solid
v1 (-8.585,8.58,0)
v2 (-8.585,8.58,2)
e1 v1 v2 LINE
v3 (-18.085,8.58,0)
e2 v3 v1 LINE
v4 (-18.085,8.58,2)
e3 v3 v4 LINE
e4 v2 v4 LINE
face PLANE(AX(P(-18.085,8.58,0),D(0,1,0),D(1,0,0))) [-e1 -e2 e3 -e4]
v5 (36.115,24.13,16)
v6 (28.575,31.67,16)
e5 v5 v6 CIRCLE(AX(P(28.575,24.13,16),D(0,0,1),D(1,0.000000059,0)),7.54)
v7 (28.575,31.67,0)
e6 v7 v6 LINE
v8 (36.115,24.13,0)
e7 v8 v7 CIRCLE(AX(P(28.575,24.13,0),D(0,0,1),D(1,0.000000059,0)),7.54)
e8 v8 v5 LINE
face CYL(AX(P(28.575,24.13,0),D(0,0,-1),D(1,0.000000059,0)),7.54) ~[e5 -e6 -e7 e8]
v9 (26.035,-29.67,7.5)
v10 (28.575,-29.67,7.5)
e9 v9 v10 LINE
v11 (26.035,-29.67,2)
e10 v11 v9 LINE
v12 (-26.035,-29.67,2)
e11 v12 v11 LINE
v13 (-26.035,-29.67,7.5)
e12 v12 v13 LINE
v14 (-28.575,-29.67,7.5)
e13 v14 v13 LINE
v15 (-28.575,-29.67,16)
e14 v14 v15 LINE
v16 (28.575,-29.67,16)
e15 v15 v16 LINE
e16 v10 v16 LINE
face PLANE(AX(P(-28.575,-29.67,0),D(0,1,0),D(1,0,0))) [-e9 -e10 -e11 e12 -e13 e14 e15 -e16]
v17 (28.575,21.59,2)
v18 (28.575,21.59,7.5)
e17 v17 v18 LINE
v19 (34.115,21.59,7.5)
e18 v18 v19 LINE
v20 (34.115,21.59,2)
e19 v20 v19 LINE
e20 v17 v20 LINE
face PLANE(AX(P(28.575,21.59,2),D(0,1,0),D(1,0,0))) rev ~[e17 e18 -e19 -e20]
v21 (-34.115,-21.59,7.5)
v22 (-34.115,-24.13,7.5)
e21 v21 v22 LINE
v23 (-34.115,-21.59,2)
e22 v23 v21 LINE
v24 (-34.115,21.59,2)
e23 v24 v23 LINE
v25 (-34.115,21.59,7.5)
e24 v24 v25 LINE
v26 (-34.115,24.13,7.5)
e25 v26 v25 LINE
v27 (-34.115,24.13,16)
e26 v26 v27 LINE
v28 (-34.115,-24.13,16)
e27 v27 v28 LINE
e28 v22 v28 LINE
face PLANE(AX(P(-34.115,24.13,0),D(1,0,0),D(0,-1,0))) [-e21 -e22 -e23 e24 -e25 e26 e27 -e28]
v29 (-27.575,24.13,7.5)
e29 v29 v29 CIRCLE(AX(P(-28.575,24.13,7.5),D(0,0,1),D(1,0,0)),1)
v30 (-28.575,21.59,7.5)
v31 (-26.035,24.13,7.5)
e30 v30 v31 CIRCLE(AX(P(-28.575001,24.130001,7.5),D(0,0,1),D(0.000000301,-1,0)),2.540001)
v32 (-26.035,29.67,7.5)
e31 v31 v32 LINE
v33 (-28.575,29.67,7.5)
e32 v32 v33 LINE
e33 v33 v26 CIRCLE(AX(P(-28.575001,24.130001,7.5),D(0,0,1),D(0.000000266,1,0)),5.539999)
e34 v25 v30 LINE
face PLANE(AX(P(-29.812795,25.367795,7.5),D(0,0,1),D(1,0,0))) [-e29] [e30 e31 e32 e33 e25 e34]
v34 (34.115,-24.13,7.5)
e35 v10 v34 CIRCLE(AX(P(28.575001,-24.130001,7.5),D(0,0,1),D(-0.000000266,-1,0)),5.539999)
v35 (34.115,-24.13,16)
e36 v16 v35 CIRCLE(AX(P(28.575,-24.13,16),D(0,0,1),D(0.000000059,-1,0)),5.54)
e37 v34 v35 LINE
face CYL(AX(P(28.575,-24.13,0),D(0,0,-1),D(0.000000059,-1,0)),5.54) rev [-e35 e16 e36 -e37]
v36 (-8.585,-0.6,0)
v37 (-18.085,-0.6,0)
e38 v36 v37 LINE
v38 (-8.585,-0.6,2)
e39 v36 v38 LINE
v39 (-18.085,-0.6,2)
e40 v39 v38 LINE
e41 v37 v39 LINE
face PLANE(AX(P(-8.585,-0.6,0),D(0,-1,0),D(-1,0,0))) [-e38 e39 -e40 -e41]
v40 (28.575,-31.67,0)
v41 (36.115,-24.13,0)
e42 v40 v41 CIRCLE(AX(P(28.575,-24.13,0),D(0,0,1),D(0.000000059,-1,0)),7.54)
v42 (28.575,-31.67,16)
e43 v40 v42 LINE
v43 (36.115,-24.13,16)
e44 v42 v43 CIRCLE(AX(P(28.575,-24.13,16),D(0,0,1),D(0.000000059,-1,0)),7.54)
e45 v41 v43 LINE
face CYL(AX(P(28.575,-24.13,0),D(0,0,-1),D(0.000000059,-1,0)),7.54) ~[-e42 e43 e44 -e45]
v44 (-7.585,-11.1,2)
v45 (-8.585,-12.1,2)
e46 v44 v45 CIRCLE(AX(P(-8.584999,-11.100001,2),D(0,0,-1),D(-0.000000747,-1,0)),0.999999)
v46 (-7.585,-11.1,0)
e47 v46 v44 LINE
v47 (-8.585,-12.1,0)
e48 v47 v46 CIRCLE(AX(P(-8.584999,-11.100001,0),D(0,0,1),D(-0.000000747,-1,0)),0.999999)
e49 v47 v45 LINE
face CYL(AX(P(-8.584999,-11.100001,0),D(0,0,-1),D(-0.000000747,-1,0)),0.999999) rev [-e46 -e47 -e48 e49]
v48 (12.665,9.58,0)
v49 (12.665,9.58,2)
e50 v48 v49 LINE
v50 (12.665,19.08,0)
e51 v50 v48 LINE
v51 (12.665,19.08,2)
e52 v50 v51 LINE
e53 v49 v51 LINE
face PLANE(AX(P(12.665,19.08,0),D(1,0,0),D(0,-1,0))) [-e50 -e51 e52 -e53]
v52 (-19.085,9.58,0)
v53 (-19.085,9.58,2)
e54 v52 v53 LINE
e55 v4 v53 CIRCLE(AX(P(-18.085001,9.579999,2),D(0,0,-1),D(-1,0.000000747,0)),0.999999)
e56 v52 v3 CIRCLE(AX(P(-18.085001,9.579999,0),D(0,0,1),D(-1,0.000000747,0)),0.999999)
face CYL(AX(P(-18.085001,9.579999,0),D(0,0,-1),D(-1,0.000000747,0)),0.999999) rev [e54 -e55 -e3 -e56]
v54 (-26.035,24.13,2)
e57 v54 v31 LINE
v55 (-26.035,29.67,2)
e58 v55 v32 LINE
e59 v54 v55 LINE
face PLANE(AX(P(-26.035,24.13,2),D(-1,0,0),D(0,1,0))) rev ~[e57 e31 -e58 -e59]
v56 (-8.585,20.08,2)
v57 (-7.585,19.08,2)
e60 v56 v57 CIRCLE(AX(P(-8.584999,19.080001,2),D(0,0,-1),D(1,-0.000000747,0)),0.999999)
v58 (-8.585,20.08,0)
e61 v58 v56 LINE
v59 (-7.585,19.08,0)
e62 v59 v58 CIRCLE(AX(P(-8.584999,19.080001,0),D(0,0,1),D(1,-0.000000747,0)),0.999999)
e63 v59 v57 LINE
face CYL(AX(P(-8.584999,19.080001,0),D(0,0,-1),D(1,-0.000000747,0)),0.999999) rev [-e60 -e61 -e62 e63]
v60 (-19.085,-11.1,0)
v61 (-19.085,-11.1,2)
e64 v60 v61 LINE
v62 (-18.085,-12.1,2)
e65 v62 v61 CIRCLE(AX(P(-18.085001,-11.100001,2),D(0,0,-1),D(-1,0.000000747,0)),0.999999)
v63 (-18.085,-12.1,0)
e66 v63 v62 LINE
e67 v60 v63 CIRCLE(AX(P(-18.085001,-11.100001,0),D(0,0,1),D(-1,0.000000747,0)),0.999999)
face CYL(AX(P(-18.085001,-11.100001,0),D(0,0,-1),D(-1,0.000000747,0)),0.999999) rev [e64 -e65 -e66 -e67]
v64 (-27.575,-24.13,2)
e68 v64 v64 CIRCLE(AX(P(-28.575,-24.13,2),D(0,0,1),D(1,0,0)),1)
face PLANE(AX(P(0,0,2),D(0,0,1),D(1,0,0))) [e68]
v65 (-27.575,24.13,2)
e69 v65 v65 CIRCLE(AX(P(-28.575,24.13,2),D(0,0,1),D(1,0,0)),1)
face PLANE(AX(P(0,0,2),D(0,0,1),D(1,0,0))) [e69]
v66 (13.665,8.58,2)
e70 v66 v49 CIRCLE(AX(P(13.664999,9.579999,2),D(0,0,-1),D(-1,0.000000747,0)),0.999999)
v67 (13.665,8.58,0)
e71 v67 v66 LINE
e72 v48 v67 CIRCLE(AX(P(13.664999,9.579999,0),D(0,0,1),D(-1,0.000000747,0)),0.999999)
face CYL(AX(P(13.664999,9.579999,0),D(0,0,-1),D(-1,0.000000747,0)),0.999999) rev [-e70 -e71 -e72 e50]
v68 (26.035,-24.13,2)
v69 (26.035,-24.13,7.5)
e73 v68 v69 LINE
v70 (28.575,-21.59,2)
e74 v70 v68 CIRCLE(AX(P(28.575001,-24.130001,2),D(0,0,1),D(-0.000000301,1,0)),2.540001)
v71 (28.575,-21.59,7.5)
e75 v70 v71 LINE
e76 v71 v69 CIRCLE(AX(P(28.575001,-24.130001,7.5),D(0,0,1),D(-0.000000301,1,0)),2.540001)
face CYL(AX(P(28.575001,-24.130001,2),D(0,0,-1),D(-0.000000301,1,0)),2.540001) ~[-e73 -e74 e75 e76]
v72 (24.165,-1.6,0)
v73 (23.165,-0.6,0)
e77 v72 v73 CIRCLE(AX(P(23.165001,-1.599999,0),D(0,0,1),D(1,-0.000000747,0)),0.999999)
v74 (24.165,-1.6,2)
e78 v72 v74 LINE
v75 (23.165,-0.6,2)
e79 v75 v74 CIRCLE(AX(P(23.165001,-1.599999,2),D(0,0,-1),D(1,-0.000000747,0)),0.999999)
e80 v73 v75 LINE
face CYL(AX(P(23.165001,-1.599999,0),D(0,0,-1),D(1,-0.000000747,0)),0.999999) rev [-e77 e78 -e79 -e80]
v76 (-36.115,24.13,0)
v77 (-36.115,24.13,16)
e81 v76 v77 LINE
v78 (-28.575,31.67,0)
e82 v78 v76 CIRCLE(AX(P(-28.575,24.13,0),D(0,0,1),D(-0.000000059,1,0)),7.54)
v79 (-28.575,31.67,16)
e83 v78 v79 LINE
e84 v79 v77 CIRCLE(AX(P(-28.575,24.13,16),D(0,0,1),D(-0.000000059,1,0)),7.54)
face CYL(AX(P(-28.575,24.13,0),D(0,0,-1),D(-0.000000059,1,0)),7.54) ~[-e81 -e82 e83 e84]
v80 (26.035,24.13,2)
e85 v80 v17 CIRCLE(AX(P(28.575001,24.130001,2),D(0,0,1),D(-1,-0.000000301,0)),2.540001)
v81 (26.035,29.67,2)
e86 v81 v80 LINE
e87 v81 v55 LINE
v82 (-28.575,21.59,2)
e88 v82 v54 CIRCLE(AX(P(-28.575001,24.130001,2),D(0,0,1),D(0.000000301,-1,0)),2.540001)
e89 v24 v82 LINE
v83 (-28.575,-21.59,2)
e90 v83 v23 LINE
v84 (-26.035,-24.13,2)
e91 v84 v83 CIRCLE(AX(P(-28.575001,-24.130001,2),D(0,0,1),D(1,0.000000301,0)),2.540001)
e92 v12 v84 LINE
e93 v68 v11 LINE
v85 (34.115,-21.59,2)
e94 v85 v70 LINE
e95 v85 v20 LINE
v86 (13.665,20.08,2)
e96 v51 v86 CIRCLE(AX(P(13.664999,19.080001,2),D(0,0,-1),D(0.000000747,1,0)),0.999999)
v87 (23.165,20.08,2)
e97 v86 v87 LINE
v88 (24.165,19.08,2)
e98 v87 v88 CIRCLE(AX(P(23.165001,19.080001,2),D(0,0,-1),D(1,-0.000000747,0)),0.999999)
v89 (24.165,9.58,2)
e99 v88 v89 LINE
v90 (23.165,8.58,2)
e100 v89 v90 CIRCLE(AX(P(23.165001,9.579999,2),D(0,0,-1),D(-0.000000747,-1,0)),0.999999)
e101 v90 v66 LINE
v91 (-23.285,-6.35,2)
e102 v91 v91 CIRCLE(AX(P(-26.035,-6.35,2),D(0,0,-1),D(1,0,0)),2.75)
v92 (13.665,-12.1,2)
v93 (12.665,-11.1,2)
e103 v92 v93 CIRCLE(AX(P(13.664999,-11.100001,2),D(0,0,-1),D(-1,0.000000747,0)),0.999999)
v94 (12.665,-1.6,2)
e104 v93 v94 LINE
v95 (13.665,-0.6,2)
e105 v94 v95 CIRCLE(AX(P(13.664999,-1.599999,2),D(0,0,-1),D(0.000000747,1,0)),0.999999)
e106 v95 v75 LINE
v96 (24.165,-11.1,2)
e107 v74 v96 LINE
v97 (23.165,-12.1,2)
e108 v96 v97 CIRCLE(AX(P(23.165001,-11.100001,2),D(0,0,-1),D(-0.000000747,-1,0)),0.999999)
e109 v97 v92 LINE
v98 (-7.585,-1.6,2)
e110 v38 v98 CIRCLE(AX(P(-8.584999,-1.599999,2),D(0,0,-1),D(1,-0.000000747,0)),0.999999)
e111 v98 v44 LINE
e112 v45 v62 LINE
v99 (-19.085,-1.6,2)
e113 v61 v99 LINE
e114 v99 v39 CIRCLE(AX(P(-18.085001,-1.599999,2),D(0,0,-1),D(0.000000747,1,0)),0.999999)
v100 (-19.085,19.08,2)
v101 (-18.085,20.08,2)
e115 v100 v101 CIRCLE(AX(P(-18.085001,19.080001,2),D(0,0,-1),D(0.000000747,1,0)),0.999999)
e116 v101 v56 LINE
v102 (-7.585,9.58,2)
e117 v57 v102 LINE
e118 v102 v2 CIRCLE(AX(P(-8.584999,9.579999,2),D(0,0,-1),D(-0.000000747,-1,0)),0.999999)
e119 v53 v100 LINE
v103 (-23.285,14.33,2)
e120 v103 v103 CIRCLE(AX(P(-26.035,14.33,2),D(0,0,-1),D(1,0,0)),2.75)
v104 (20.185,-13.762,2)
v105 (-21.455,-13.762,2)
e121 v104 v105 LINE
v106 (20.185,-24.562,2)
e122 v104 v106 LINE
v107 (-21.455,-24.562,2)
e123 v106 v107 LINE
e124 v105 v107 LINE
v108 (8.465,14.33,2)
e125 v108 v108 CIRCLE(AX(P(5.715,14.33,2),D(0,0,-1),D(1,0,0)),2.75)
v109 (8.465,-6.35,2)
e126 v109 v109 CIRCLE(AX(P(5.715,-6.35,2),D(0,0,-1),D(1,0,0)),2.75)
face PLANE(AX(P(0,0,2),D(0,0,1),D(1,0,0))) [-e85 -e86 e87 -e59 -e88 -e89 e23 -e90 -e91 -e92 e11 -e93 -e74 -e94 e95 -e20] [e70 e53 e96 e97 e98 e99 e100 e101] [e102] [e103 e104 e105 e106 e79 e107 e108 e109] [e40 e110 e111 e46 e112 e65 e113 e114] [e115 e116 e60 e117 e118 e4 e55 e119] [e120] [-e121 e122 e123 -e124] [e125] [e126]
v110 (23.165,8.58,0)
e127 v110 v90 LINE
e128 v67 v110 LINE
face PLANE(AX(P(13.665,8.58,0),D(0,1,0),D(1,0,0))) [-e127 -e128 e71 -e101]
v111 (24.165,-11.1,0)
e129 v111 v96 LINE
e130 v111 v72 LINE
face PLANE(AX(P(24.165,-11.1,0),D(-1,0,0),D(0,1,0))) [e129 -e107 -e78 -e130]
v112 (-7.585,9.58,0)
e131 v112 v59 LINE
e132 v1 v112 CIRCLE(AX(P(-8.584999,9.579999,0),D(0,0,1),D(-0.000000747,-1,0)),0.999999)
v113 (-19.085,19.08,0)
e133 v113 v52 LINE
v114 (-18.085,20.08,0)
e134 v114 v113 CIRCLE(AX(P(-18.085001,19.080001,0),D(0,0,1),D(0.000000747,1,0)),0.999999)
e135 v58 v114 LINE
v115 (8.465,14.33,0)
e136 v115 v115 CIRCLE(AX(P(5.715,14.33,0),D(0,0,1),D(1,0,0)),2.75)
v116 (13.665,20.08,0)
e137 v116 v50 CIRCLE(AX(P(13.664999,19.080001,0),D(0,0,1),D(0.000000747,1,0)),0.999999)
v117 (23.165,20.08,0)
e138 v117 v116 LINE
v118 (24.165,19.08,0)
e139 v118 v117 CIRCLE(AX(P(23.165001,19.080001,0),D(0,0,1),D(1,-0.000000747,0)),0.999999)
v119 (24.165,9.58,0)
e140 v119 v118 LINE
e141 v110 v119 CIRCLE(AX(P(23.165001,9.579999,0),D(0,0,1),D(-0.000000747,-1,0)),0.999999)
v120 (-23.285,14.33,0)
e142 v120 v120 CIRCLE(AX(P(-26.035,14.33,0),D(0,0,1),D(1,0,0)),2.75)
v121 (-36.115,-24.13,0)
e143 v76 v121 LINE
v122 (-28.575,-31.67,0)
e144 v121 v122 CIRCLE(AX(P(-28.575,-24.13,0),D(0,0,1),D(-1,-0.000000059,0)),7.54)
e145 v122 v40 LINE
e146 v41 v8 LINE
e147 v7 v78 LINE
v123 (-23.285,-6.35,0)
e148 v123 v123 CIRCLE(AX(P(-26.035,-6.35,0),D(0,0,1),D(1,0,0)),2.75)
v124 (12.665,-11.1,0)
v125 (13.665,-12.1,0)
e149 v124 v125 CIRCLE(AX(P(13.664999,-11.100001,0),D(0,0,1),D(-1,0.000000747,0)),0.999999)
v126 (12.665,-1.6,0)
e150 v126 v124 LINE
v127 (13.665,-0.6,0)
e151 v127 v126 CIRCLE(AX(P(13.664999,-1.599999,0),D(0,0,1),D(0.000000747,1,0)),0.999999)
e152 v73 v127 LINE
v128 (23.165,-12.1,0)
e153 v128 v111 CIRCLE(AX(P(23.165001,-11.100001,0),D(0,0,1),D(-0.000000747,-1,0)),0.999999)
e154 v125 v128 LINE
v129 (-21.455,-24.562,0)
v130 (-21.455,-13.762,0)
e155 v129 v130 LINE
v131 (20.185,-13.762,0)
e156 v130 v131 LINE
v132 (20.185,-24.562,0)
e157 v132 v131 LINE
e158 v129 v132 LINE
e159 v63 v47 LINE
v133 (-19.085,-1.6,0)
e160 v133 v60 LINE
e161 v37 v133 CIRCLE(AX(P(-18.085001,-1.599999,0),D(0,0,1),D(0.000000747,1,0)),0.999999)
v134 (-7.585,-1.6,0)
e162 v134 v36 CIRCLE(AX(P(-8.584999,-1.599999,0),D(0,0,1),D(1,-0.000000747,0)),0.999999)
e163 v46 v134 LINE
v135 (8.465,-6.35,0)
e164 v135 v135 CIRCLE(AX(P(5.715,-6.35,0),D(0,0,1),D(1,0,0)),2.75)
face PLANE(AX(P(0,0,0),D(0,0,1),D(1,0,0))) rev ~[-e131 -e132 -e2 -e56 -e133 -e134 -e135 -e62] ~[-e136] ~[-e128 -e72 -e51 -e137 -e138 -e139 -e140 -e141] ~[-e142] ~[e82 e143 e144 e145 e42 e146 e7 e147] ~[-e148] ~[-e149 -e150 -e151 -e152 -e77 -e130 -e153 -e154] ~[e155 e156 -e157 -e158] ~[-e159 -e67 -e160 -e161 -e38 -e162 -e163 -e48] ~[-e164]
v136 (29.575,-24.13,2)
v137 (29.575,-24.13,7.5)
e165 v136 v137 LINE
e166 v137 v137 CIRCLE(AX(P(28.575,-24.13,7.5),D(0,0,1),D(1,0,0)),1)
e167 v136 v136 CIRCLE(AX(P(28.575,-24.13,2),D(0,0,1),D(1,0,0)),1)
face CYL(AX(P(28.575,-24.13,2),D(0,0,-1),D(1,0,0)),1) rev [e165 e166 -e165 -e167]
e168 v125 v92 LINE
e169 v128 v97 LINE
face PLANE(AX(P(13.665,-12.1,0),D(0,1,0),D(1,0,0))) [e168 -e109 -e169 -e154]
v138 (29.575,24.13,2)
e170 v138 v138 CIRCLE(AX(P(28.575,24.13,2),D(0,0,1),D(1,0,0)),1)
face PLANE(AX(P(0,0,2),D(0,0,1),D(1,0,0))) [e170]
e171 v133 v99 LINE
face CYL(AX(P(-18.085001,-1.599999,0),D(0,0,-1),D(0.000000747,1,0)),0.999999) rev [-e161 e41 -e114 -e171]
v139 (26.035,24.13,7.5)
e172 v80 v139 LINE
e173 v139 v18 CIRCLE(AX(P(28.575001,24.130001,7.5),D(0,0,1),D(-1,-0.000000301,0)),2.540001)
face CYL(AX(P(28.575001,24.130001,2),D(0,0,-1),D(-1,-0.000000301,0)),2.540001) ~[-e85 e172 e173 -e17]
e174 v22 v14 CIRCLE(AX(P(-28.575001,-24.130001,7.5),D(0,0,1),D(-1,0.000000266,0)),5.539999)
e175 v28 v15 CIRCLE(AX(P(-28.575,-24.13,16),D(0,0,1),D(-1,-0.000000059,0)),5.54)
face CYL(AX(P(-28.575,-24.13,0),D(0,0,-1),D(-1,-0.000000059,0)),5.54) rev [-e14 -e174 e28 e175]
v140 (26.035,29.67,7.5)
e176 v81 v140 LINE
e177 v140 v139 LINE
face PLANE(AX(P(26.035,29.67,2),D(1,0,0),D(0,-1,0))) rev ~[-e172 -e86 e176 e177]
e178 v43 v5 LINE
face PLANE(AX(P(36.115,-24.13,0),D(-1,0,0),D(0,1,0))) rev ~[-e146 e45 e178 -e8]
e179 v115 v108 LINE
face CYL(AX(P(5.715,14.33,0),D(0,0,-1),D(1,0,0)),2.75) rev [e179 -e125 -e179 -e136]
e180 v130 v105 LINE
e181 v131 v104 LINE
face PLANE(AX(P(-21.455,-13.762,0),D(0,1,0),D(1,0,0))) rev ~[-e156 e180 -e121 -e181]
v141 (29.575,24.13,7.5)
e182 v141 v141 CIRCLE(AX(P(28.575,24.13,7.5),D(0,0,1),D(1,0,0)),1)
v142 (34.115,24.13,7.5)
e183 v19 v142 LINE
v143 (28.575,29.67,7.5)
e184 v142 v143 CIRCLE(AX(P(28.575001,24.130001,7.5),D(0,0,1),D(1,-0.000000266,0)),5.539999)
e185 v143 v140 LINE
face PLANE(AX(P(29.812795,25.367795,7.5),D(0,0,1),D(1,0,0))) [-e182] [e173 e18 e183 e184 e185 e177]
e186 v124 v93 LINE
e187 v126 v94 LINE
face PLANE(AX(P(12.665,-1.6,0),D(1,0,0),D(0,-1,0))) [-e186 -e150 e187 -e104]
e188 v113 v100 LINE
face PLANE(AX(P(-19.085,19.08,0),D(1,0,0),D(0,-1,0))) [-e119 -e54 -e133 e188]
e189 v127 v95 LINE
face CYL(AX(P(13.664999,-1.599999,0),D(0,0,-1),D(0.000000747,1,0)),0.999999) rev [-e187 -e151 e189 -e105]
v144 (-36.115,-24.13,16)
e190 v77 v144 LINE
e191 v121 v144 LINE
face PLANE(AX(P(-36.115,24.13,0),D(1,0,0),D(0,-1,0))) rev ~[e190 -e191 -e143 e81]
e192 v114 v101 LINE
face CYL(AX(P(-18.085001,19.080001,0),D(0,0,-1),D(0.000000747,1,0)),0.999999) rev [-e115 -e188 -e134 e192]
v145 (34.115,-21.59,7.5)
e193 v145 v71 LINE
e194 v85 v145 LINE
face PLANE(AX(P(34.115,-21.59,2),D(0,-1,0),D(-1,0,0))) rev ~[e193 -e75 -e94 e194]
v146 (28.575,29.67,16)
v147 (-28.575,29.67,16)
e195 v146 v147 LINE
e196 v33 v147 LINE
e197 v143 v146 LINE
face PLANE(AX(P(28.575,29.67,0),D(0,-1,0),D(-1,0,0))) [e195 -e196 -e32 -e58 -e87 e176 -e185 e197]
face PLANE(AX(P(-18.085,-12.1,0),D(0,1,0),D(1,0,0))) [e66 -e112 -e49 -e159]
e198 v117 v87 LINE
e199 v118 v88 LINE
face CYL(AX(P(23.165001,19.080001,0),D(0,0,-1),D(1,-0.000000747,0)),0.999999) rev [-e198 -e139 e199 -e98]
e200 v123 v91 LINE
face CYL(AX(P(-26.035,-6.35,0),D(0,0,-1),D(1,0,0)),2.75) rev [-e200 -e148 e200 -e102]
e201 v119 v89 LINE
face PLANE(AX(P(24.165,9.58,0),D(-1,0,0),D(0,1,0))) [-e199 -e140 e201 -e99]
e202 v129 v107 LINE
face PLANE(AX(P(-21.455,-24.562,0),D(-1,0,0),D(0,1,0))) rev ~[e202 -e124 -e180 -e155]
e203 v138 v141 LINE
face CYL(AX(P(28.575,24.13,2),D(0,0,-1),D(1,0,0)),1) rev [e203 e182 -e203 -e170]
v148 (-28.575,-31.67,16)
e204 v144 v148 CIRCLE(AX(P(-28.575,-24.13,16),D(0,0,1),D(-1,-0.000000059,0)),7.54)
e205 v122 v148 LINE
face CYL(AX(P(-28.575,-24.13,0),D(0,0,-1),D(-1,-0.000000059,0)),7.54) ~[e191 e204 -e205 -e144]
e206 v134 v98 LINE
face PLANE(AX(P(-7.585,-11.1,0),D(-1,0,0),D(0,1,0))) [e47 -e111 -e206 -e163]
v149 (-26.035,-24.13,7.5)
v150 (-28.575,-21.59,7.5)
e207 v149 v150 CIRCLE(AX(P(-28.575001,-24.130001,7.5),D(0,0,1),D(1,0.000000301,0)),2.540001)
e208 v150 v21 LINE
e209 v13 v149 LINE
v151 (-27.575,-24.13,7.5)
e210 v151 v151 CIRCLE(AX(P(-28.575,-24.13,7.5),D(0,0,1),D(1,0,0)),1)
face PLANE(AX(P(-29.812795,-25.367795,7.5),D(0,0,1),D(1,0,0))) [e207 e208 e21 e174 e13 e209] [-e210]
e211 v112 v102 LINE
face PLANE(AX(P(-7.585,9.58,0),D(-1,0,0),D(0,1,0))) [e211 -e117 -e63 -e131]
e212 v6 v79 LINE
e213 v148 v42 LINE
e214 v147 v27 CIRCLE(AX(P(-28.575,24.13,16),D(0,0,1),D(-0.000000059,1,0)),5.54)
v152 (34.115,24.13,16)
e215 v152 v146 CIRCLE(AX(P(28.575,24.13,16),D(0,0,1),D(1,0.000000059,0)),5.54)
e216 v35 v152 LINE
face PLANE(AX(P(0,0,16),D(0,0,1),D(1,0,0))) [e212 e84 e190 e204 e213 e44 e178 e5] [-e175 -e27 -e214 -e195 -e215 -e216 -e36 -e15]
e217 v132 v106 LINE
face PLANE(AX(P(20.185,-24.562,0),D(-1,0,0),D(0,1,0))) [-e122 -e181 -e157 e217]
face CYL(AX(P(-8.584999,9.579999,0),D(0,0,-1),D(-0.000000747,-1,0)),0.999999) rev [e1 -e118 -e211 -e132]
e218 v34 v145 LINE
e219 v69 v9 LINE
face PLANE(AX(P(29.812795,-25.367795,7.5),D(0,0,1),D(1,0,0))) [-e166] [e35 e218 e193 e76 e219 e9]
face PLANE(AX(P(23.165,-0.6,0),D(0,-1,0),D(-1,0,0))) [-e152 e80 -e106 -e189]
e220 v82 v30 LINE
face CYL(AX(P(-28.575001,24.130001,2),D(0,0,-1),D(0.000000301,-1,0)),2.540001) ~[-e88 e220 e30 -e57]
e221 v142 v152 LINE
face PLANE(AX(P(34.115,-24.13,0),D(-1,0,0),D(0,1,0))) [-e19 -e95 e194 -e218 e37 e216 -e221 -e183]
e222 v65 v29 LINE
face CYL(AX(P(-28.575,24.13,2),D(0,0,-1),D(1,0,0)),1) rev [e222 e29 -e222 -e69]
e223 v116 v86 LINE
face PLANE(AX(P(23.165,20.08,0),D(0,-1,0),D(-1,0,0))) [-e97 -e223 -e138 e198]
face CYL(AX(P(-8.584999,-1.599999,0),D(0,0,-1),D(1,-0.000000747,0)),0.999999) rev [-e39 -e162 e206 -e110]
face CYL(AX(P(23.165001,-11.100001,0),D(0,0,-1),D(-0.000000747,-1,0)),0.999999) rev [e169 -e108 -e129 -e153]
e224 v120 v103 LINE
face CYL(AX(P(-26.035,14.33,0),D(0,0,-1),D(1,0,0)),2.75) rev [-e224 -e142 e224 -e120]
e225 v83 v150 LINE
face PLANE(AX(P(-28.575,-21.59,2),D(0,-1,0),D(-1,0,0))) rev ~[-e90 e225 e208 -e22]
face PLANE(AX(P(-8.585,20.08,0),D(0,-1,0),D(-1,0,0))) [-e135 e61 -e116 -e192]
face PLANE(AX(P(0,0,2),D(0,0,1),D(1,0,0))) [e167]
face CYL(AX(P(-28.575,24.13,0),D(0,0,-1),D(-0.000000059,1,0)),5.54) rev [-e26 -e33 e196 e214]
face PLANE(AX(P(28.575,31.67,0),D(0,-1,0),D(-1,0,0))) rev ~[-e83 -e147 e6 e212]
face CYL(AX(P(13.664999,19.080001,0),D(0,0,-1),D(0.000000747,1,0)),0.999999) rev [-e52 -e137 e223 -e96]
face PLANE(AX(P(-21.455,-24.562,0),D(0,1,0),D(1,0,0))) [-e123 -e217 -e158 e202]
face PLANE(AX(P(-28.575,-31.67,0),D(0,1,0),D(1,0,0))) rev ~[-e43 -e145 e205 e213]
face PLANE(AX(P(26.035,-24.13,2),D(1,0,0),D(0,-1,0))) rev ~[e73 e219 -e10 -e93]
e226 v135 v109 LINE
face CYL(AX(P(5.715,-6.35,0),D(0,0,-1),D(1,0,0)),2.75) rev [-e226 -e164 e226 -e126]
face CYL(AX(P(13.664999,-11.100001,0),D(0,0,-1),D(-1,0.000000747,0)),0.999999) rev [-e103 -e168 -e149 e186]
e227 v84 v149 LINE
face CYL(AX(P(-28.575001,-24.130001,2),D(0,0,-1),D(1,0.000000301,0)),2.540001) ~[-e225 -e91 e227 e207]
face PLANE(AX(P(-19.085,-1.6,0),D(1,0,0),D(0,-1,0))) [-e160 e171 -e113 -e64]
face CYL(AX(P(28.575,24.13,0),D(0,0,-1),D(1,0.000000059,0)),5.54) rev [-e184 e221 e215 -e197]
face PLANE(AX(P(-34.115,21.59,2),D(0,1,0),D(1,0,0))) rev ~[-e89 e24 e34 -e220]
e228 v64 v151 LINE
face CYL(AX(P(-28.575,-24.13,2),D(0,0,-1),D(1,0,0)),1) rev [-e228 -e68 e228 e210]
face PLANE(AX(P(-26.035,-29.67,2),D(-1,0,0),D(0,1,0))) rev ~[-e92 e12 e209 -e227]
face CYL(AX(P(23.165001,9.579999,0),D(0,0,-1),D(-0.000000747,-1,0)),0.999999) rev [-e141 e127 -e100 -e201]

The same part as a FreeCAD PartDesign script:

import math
import FreeCAD as App
import Part
import Sketcher

V = App.Vector
Q = App.Units.Quantity


def faces_at(feature, points):
    """Names of the faces that lie closest to the given points."""
    faces = feature.Shape.Faces
    near = lambda p: min(range(len(faces)), key=lambda i: faces[i].distToShape(Part.Vertex(*p))[0])
    return sorted({f"Face{near(p) + 1}" for p in points})

doc = App.newDocument("Part")
body = doc.addObject("PartDesign::Body", "Body")

# Sketch on XY plane
sketch1 = body.newObject("Sketcher::SketchObject", "Sketch")
sketch1.AttachmentSupport = (doc.getObject("XY_Plane"), [""])
sketch1.MapMode = "FlatFace"
sketch1.addGeometry(Part.ArcOfCircle(Part.Circle(V(29, 24, 0), V(0, 0, 1), 8), math.radians(0), math.radians(90)), False)
sketch1.addGeometry(Part.LineSegment(V(29, 32, 0), V(-29, 32, 0)), False)
sketch1.addGeometry(Part.ArcOfCircle(Part.Circle(V(-29, 24, 0), V(0, 0, 1), 8), math.radians(90), math.radians(180)), False)
sketch1.addGeometry(Part.LineSegment(V(-36, 24, 0), V(-36, -24, 0)), False)
sketch1.addGeometry(Part.ArcOfCircle(Part.Circle(V(-29, -24, 0), V(0, 0, 1), 8), math.radians(-180), math.radians(-90)), False)
sketch1.addGeometry(Part.LineSegment(V(-29, -32, 0), V(29, -32, 0)), False)
sketch1.addGeometry(Part.ArcOfCircle(Part.Circle(V(29, -24, 0), V(0, 0, 1), 8), math.radians(-90), math.radians(0)), False)
sketch1.addGeometry(Part.LineSegment(V(36, -24, 0), V(36, 24, 0)), False)
sketch1.addConstraint(Sketcher.Constraint("Tangent", 0, 2, 1, 1))
sketch1.addConstraint(Sketcher.Constraint("Tangent", 1, 2, 2, 1))
sketch1.addConstraint(Sketcher.Constraint("Tangent", 2, 2, 3, 1))
sketch1.addConstraint(Sketcher.Constraint("Tangent", 3, 2, 4, 1))
sketch1.addConstraint(Sketcher.Constraint("Tangent", 4, 2, 5, 1))
sketch1.addConstraint(Sketcher.Constraint("Tangent", 5, 2, 6, 1))
sketch1.addConstraint(Sketcher.Constraint("Tangent", 6, 2, 7, 1))
sketch1.addConstraint(Sketcher.Constraint("Tangent", 7, 2, 0, 1))
sketch1.addConstraint(Sketcher.Constraint("Horizontal", 1))
sketch1.addConstraint(Sketcher.Constraint("Vertical", 3))
sketch1.addConstraint(Sketcher.Constraint("Horizontal", 5))
sketch1.addConstraint(Sketcher.Constraint("Vertical", 7))
sketch1.addConstraint(Sketcher.Constraint("Equal", 0, 2))
sketch1.addConstraint(Sketcher.Constraint("Equal", 2, 4))
sketch1.addConstraint(Sketcher.Constraint("Equal", 4, 6))
sketch1.addConstraint(Sketcher.Constraint("Symmetric", 0, 3, 4, 3, -1, 1))
sketch1.addConstraint(Sketcher.Constraint("Radius", 0, Q("7.54 mm")))
sketch1.addConstraint(Sketcher.Constraint("DistanceX", 1, 2, 1, 1, Q("57.15 mm")))
sketch1.addConstraint(Sketcher.Constraint("DistanceY", 3, 2, 3, 1, Q("48.26 mm")))
pad1 = body.newObject("PartDesign::Pad", "Pad")
pad1.Profile = sketch1
pad1.Length = 16
doc.recompute()

thickness = body.newObject("PartDesign::Thickness", "Thickness")
thickness.Base = (pad1, faces_at(pad1, [(0, 0, 16)]))
thickness.Value = 2
thickness.Reversed = True
thickness.Join = "Arc"

# Sketch on XY plane
sketch2 = body.newObject("Sketcher::SketchObject", "Sketch001")
sketch2.AttachmentSupport = (doc.getObject("XY_Plane"), [""])
sketch2.MapMode = "FlatFace"
sketch2.addGeometry(Part.LineSegment(V(-21.5, -13.8, 0), V(-21.5, -24.6, 0)), False)
sketch2.addGeometry(Part.LineSegment(V(-21.5, -24.6, 0), V(20.2, -24.6, 0)), False)
sketch2.addGeometry(Part.LineSegment(V(20.2, -24.6, 0), V(20.2, -13.8, 0)), False)
sketch2.addGeometry(Part.LineSegment(V(20.2, -13.8, 0), V(-21.5, -13.8, 0)), False)
sketch2.addGeometry(Part.LineSegment(V(-8.6, -0.6, 0), V(-18.1, -0.6, 0)), False)
sketch2.addGeometry(Part.ArcOfCircle(Part.Circle(V(-18.1, -1.6, 0), V(0, 0, 1), 1), math.radians(90), math.radians(180)), False)
sketch2.addGeometry(Part.LineSegment(V(-19.1, -1.6, 0), V(-19.1, -11.1, 0)), False)
sketch2.addGeometry(Part.ArcOfCircle(Part.Circle(V(-18.1, -11.1, 0), V(0, 0, 1), 1), math.radians(180), math.radians(270)), False)
sketch2.addGeometry(Part.LineSegment(V(-18.1, -12.1, 0), V(-8.6, -12.1, 0)), False)
sketch2.addGeometry(Part.ArcOfCircle(Part.Circle(V(-8.6, -11.1, 0), V(0, 0, 1), 1), math.radians(-90), math.radians(0)), False)
sketch2.addGeometry(Part.LineSegment(V(-7.6, -11.1, 0), V(-7.6, -1.6, 0)), False)
sketch2.addGeometry(Part.ArcOfCircle(Part.Circle(V(-8.6, -1.6, 0), V(0, 0, 1), 1), math.radians(0), math.radians(90)), False)
sketch2.addGeometry(Part.Circle(V(-26, -6.3, 0), V(0, 0, 1), 2.8), False)
sketch2.addGeometry(Part.LineSegment(V(-8.6, 20.1, 0), V(-18.1, 20.1, 0)), False)
sketch2.addGeometry(Part.ArcOfCircle(Part.Circle(V(-18.1, 19.1, 0), V(0, 0, 1), 1), math.radians(90), math.radians(180)), False)
sketch2.addGeometry(Part.LineSegment(V(-19.1, 19.1, 0), V(-19.1, 9.6, 0)), False)
sketch2.addGeometry(Part.ArcOfCircle(Part.Circle(V(-18.1, 9.6, 0), V(0, 0, 1), 1), math.radians(180), math.radians(270)), False)
sketch2.addGeometry(Part.LineSegment(V(-18.1, 8.6, 0), V(-8.6, 8.6, 0)), False)
sketch2.addGeometry(Part.ArcOfCircle(Part.Circle(V(-8.6, 9.6, 0), V(0, 0, 1), 1), math.radians(-90), math.radians(0)), False)
sketch2.addGeometry(Part.LineSegment(V(-7.6, 9.6, 0), V(-7.6, 19.1, 0)), False)
sketch2.addGeometry(Part.ArcOfCircle(Part.Circle(V(-8.6, 19.1, 0), V(0, 0, 1), 1), math.radians(0), math.radians(90)), False)
sketch2.addGeometry(Part.Circle(V(-26, 14.3, 0), V(0, 0, 1), 2.8), False)
sketch2.addGeometry(Part.LineSegment(V(23.2, -0.6, 0), V(13.7, -0.6, 0)), False)
sketch2.addGeometry(Part.ArcOfCircle(Part.Circle(V(13.7, -1.6, 0), V(0, 0, 1), 1), math.radians(90), math.radians(180)), False)
sketch2.addGeometry(Part.LineSegment(V(12.7, -1.6, 0), V(12.7, -11.1, 0)), False)
sketch2.addGeometry(Part.ArcOfCircle(Part.Circle(V(13.7, -11.1, 0), V(0, 0, 1), 1), math.radians(180), math.radians(270)), False)
sketch2.addGeometry(Part.LineSegment(V(13.7, -12.1, 0), V(23.2, -12.1, 0)), False)
sketch2.addGeometry(Part.ArcOfCircle(Part.Circle(V(23.2, -11.1, 0), V(0, 0, 1), 1), math.radians(-90), math.radians(0)), False)
sketch2.addGeometry(Part.LineSegment(V(24.2, -11.1, 0), V(24.2, -1.6, 0)), False)
sketch2.addGeometry(Part.ArcOfCircle(Part.Circle(V(23.2, -1.6, 0), V(0, 0, 1), 1), math.radians(0), math.radians(90)), False)
sketch2.addGeometry(Part.Circle(V(5.7, -6.3, 0), V(0, 0, 1), 2.8), False)
sketch2.addGeometry(Part.LineSegment(V(23.2, 20.1, 0), V(13.7, 20.1, 0)), False)
sketch2.addGeometry(Part.ArcOfCircle(Part.Circle(V(13.7, 19.1, 0), V(0, 0, 1), 1), math.radians(90), math.radians(180)), False)
sketch2.addGeometry(Part.LineSegment(V(12.7, 19.1, 0), V(12.7, 9.6, 0)), False)
sketch2.addGeometry(Part.ArcOfCircle(Part.Circle(V(13.7, 9.6, 0), V(0, 0, 1), 1), math.radians(180), math.radians(270)), False)
sketch2.addGeometry(Part.LineSegment(V(13.7, 8.6, 0), V(23.2, 8.6, 0)), False)
sketch2.addGeometry(Part.ArcOfCircle(Part.Circle(V(23.2, 9.6, 0), V(0, 0, 1), 1), math.radians(-90), math.radians(0)), False)
sketch2.addGeometry(Part.LineSegment(V(24.2, 9.6, 0), V(24.2, 19.1, 0)), False)
sketch2.addGeometry(Part.ArcOfCircle(Part.Circle(V(23.2, 19.1, 0), V(0, 0, 1), 1), math.radians(0), math.radians(90)), False)
sketch2.addGeometry(Part.Circle(V(5.7, 14.3, 0), V(0, 0, 1), 2.8), False)
sketch2.addConstraint(Sketcher.Constraint("Coincident", 0, 2, 1, 1))
sketch2.addConstraint(Sketcher.Constraint("Coincident", 1, 2, 2, 1))
sketch2.addConstraint(Sketcher.Constraint("Coincident", 2, 2, 3, 1))
sketch2.addConstraint(Sketcher.Constraint("Coincident", 3, 2, 0, 1))
sketch2.addConstraint(Sketcher.Constraint("Tangent", 4, 2, 5, 1))
sketch2.addConstraint(Sketcher.Constraint("Tangent", 5, 2, 6, 1))
sketch2.addConstraint(Sketcher.Constraint("Tangent", 6, 2, 7, 1))
sketch2.addConstraint(Sketcher.Constraint("Tangent", 7, 2, 8, 1))
sketch2.addConstraint(Sketcher.Constraint("Tangent", 8, 2, 9, 1))
sketch2.addConstraint(Sketcher.Constraint("Tangent", 9, 2, 10, 1))
sketch2.addConstraint(Sketcher.Constraint("Tangent", 10, 2, 11, 1))
sketch2.addConstraint(Sketcher.Constraint("Tangent", 11, 2, 4, 1))
sketch2.addConstraint(Sketcher.Constraint("Tangent", 13, 2, 14, 1))
sketch2.addConstraint(Sketcher.Constraint("Tangent", 14, 2, 15, 1))
sketch2.addConstraint(Sketcher.Constraint("Tangent", 15, 2, 16, 1))
sketch2.addConstraint(Sketcher.Constraint("Tangent", 16, 2, 17, 1))
sketch2.addConstraint(Sketcher.Constraint("Tangent", 17, 2, 18, 1))
sketch2.addConstraint(Sketcher.Constraint("Tangent", 18, 2, 19, 1))
sketch2.addConstraint(Sketcher.Constraint("Tangent", 19, 2, 20, 1))
sketch2.addConstraint(Sketcher.Constraint("Tangent", 20, 2, 13, 1))
sketch2.addConstraint(Sketcher.Constraint("Tangent", 22, 2, 23, 1))
sketch2.addConstraint(Sketcher.Constraint("Tangent", 23, 2, 24, 1))
sketch2.addConstraint(Sketcher.Constraint("Tangent", 24, 2, 25, 1))
sketch2.addConstraint(Sketcher.Constraint("Tangent", 25, 2, 26, 1))
sketch2.addConstraint(Sketcher.Constraint("Tangent", 26, 2, 27, 1))
sketch2.addConstraint(Sketcher.Constraint("Tangent", 27, 2, 28, 1))
sketch2.addConstraint(Sketcher.Constraint("Tangent", 28, 2, 29, 1))
sketch2.addConstraint(Sketcher.Constraint("Tangent", 29, 2, 22, 1))
sketch2.addConstraint(Sketcher.Constraint("Tangent", 31, 2, 32, 1))
sketch2.addConstraint(Sketcher.Constraint("Tangent", 32, 2, 33, 1))
sketch2.addConstraint(Sketcher.Constraint("Tangent", 33, 2, 34, 1))
sketch2.addConstraint(Sketcher.Constraint("Tangent", 34, 2, 35, 1))
sketch2.addConstraint(Sketcher.Constraint("Tangent", 35, 2, 36, 1))
sketch2.addConstraint(Sketcher.Constraint("Tangent", 36, 2, 37, 1))
sketch2.addConstraint(Sketcher.Constraint("Tangent", 37, 2, 38, 1))
sketch2.addConstraint(Sketcher.Constraint("Tangent", 38, 2, 31, 1))
sketch2.addConstraint(Sketcher.Constraint("Vertical", 0))
sketch2.addConstraint(Sketcher.Constraint("Horizontal", 1))
sketch2.addConstraint(Sketcher.Constraint("Vertical", 2))
sketch2.addConstraint(Sketcher.Constraint("Horizontal", 3))
sketch2.addConstraint(Sketcher.Constraint("Horizontal", 4))
sketch2.addConstraint(Sketcher.Constraint("Vertical", 6))
sketch2.addConstraint(Sketcher.Constraint("Horizontal", 8))
sketch2.addConstraint(Sketcher.Constraint("Vertical", 10))
sketch2.addConstraint(Sketcher.Constraint("Horizontal", 13))
sketch2.addConstraint(Sketcher.Constraint("Vertical", 15))
sketch2.addConstraint(Sketcher.Constraint("Horizontal", 17))
sketch2.addConstraint(Sketcher.Constraint("Vertical", 19))
sketch2.addConstraint(Sketcher.Constraint("Horizontal", 22))
sketch2.addConstraint(Sketcher.Constraint("Vertical", 24))
sketch2.addConstraint(Sketcher.Constraint("Horizontal", 26))
sketch2.addConstraint(Sketcher.Constraint("Vertical", 28))
sketch2.addConstraint(Sketcher.Constraint("Horizontal", 31))
sketch2.addConstraint(Sketcher.Constraint("Vertical", 33))
sketch2.addConstraint(Sketcher.Constraint("Horizontal", 35))
sketch2.addConstraint(Sketcher.Constraint("Vertical", 37))
sketch2.addConstraint(Sketcher.Constraint("Equal", 5, 7))
sketch2.addConstraint(Sketcher.Constraint("Equal", 7, 9))
sketch2.addConstraint(Sketcher.Constraint("Equal", 9, 11))
sketch2.addConstraint(Sketcher.Constraint("Equal", 11, 14))
sketch2.addConstraint(Sketcher.Constraint("Equal", 14, 16))
sketch2.addConstraint(Sketcher.Constraint("Equal", 16, 18))
sketch2.addConstraint(Sketcher.Constraint("Equal", 18, 20))
sketch2.addConstraint(Sketcher.Constraint("Equal", 12, 21))
sketch2.addConstraint(Sketcher.Constraint("Equal", 20, 23))
sketch2.addConstraint(Sketcher.Constraint("Equal", 23, 25))
sketch2.addConstraint(Sketcher.Constraint("Equal", 25, 27))
sketch2.addConstraint(Sketcher.Constraint("Equal", 27, 29))
sketch2.addConstraint(Sketcher.Constraint("Equal", 21, 30))
sketch2.addConstraint(Sketcher.Constraint("Equal", 29, 32))
sketch2.addConstraint(Sketcher.Constraint("Equal", 32, 34))
sketch2.addConstraint(Sketcher.Constraint("Equal", 34, 36))
sketch2.addConstraint(Sketcher.Constraint("Equal", 36, 38))
sketch2.addConstraint(Sketcher.Constraint("Equal", 30, 39))
sketch2.addConstraint(Sketcher.Constraint("Horizontal", 11, 3, 23, 3))
sketch2.addConstraint(Sketcher.Constraint("Horizontal", 9, 3, 25, 3))
sketch2.addConstraint(Sketcher.Constraint("Horizontal", 12, 3, 30, 3))
sketch2.addConstraint(Sketcher.Constraint("Horizontal", 20, 3, 32, 3))
sketch2.addConstraint(Sketcher.Constraint("Horizontal", 18, 3, 34, 3))
sketch2.addConstraint(Sketcher.Constraint("Horizontal", 21, 3, 39, 3))
sketch2.addConstraint(Sketcher.Constraint("Vertical", 7, 3, 14, 3))
sketch2.addConstraint(Sketcher.Constraint("Vertical", 11, 3, 18, 3))
sketch2.addConstraint(Sketcher.Constraint("Vertical", 12, 3, 21, 3))
sketch2.addConstraint(Sketcher.Constraint("Vertical", 25, 3, 32, 3))
sketch2.addConstraint(Sketcher.Constraint("Vertical", 29, 3, 36, 3))
sketch2.addConstraint(Sketcher.Constraint("Vertical", 30, 3, 39, 3))
sketch2.addConstraint(Sketcher.Constraint("Equal", 17, 22))
sketch2.addConstraint(Sketcher.Constraint("Equal", 35, 6))
sketch2.addConstraint(Sketcher.Constraint("Equal", 10, 15))
sketch2.addConstraint(Sketcher.Constraint("Radius", 5, Q("0.999999 mm")))
sketch2.addConstraint(Sketcher.Constraint("Diameter", 12, Q("5.5 mm")))
sketch2.addConstraint(Sketcher.Constraint("DistanceX", 4, 2, 4, 1, Q("9.5 mm")))
sketch2.addConstraint(Sketcher.Constraint("DistanceY", 0, 2, 0, 1, Q("10.8 mm")))
sketch2.addConstraint(Sketcher.Constraint("DistanceX", 1, 1, 1, 2, Q("41.64 mm")))
sketch2.addConstraint(Sketcher.Constraint("DistanceY", 5, 3, -1, 1, Q("1.599999 mm")))
sketch2.addConstraint(Sketcher.Constraint("DistanceX", 9, 3, 30, 3, Q("14.299999 mm")))
sketch2.addConstraint(Sketcher.Constraint("DistanceY", 12, 3, -1, 1, Q("6.35 mm")))
sketch2.addConstraint(Sketcher.Constraint("DistanceY", -1, 1, 14, 3, Q("19.080001 mm")))
sketch2.addConstraint(Sketcher.Constraint("DistanceY", -1, 1, 21, 3, Q("14.33 mm")))
sketch2.addConstraint(Sketcher.Constraint("DistanceX", 12, 3, 5, 3, Q("7.949999 mm")))
sketch2.addConstraint(Sketcher.Constraint("DistanceX", 11, 3, 23, 3, Q("22.249999 mm")))
sketch2.addConstraint(Sketcher.Constraint("DistanceX", 0, 2, 7, 3, Q("3.369999 mm")))
sketch2.addConstraint(Sketcher.Constraint("DistanceX", 5, 3, -1, 1, Q("18.085001 mm")))
sketch2.addConstraint(Sketcher.Constraint("DistanceY", 0, 2, -1, 1, Q("24.562 mm")))
pocket1 = body.newObject("PartDesign::Pocket", "Pocket")
pocket1.Profile = sketch2
pocket1.Type = "ThroughAll"
pocket1.Reversed = True

# Sketch on XY plane
sketch3 = body.newObject("Sketcher::SketchObject", "Sketch002")
sketch3.AttachmentSupport = (doc.getObject("XY_Plane"), [""])
sketch3.MapMode = "FlatFace"
sketch3.AttachmentOffset = App.Placement(V(0, 0, 2), App.Rotation())
sketch3.addGeometry(Part.LineSegment(V(-34.1, 24.1, 0), V(-34.1, 21.6, 0)), False)
sketch3.addGeometry(Part.LineSegment(V(-34.1, 21.6, 0), V(-28.6, 21.6, 0)), False)
sketch3.addGeometry(Part.ArcOfCircle(Part.Circle(V(-28.6, 24.1, 0), V(0, 0, 1), 2.5), math.radians(-90), math.radians(0)), False)
sketch3.addGeometry(Part.LineSegment(V(-26, 24.1, 0), V(-26, 29.7, 0)), False)
sketch3.addGeometry(Part.LineSegment(V(-26, 29.7, 0), V(-28.6, 29.7, 0)), False)
sketch3.addGeometry(Part.ArcOfCircle(Part.Circle(V(-28.6, 24.1, 0), V(0, 0, 1), 5.5), math.radians(90), math.radians(180)), False)
sketch3.addGeometry(Part.Circle(V(-28.6, 24.1, 0), V(0, 0, 1), 1), False)
sketch3.addGeometry(Part.LineSegment(V(28.6, 21.6, 0), V(34.1, 21.6, 0)), False)
sketch3.addGeometry(Part.LineSegment(V(34.1, 21.6, 0), V(34.1, 24.1, 0)), False)
sketch3.addGeometry(Part.ArcOfCircle(Part.Circle(V(28.6, 24.1, 0), V(0, 0, 1), 5.5), math.radians(0), math.radians(90)), False)
sketch3.addGeometry(Part.LineSegment(V(28.6, 29.7, 0), V(26, 29.7, 0)), False)
sketch3.addGeometry(Part.LineSegment(V(26, 29.7, 0), V(26, 24.1, 0)), False)
sketch3.addGeometry(Part.ArcOfCircle(Part.Circle(V(28.6, 24.1, 0), V(0, 0, 1), 2.5), math.radians(-180), math.radians(-90)), False)
sketch3.addGeometry(Part.Circle(V(28.6, 24.1, 0), V(0, 0, 1), 1), False)
sketch3.addGeometry(Part.LineSegment(V(26, -24.1, 0), V(26, -29.7, 0)), False)
sketch3.addGeometry(Part.LineSegment(V(26, -29.7, 0), V(28.6, -29.7, 0)), False)
sketch3.addGeometry(Part.ArcOfCircle(Part.Circle(V(28.6, -24.1, 0), V(0, 0, 1), 5.5), math.radians(-90), math.radians(0)), False)
sketch3.addGeometry(Part.LineSegment(V(34.1, -24.1, 0), V(34.1, -21.6, 0)), False)
sketch3.addGeometry(Part.LineSegment(V(34.1, -21.6, 0), V(28.6, -21.6, 0)), False)
sketch3.addGeometry(Part.ArcOfCircle(Part.Circle(V(28.6, -24.1, 0), V(0, 0, 1), 2.5), math.radians(90), math.radians(180)), False)
sketch3.addGeometry(Part.Circle(V(28.6, -24.1, 0), V(0, 0, 1), 1), False)
sketch3.addGeometry(Part.LineSegment(V(-34.1, -21.6, 0), V(-34.1, -24.1, 0)), False)
sketch3.addGeometry(Part.ArcOfCircle(Part.Circle(V(-28.6, -24.1, 0), V(0, 0, 1), 5.5), math.radians(180), math.radians(270)), False)
sketch3.addGeometry(Part.LineSegment(V(-28.6, -29.7, 0), V(-26, -29.7, 0)), False)
sketch3.addGeometry(Part.LineSegment(V(-26, -29.7, 0), V(-26, -24.1, 0)), False)
sketch3.addGeometry(Part.ArcOfCircle(Part.Circle(V(-28.6, -24.1, 0), V(0, 0, 1), 2.5), math.radians(0), math.radians(90)), False)
sketch3.addGeometry(Part.LineSegment(V(-28.6, -21.6, 0), V(-34.1, -21.6, 0)), False)
sketch3.addGeometry(Part.Circle(V(-28.6, -24.1, 0), V(0, 0, 1), 1), False)
sketch3.addConstraint(Sketcher.Constraint("Coincident", 0, 2, 1, 1))
sketch3.addConstraint(Sketcher.Constraint("Tangent", 1, 2, 2, 1))
sketch3.addConstraint(Sketcher.Constraint("Tangent", 2, 2, 3, 1))
sketch3.addConstraint(Sketcher.Constraint("Coincident", 3, 2, 4, 1))
sketch3.addConstraint(Sketcher.Constraint("Tangent", 4, 2, 5, 1))
sketch3.addConstraint(Sketcher.Constraint("Tangent", 5, 2, 0, 1))
sketch3.addConstraint(Sketcher.Constraint("Coincident", 7, 2, 8, 1))
sketch3.addConstraint(Sketcher.Constraint("Tangent", 8, 2, 9, 1))
sketch3.addConstraint(Sketcher.Constraint("Tangent", 9, 2, 10, 1))
sketch3.addConstraint(Sketcher.Constraint("Coincident", 10, 2, 11, 1))
sketch3.addConstraint(Sketcher.Constraint("Tangent", 11, 2, 12, 1))
sketch3.addConstraint(Sketcher.Constraint("Tangent", 12, 2, 7, 1))
sketch3.addConstraint(Sketcher.Constraint("Coincident", 14, 2, 15, 1))
sketch3.addConstraint(Sketcher.Constraint("Tangent", 15, 2, 16, 1))
sketch3.addConstraint(Sketcher.Constraint("Tangent", 16, 2, 17, 1))
sketch3.addConstraint(Sketcher.Constraint("Coincident", 17, 2, 18, 1))
sketch3.addConstraint(Sketcher.Constraint("Tangent", 18, 2, 19, 1))
sketch3.addConstraint(Sketcher.Constraint("Tangent", 19, 2, 14, 1))
sketch3.addConstraint(Sketcher.Constraint("Tangent", 21, 2, 22, 1))
sketch3.addConstraint(Sketcher.Constraint("Tangent", 22, 2, 23, 1))
sketch3.addConstraint(Sketcher.Constraint("Coincident", 23, 2, 24, 1))
sketch3.addConstraint(Sketcher.Constraint("Tangent", 24, 2, 25, 1))
sketch3.addConstraint(Sketcher.Constraint("Tangent", 25, 2, 26, 1))
sketch3.addConstraint(Sketcher.Constraint("Coincident", 26, 2, 21, 1))
sketch3.addConstraint(Sketcher.Constraint("Vertical", 0))
sketch3.addConstraint(Sketcher.Constraint("Horizontal", 1))
sketch3.addConstraint(Sketcher.Constraint("Vertical", 3))
sketch3.addConstraint(Sketcher.Constraint("Horizontal", 4))
sketch3.addConstraint(Sketcher.Constraint("Horizontal", 7))
sketch3.addConstraint(Sketcher.Constraint("Vertical", 8))
sketch3.addConstraint(Sketcher.Constraint("Horizontal", 10))
sketch3.addConstraint(Sketcher.Constraint("Vertical", 11))
sketch3.addConstraint(Sketcher.Constraint("Vertical", 14))
sketch3.addConstraint(Sketcher.Constraint("Horizontal", 15))
sketch3.addConstraint(Sketcher.Constraint("Vertical", 17))
sketch3.addConstraint(Sketcher.Constraint("Horizontal", 18))
sketch3.addConstraint(Sketcher.Constraint("Vertical", 21))
sketch3.addConstraint(Sketcher.Constraint("Horizontal", 23))
sketch3.addConstraint(Sketcher.Constraint("Vertical", 24))
sketch3.addConstraint(Sketcher.Constraint("Horizontal", 26))
sketch3.addConstraint(Sketcher.Constraint("Coincident", 5, 3, 2, 3))
sketch3.addConstraint(Sketcher.Constraint("Coincident", 6, 3, 2, 3))
sketch3.addConstraint(Sketcher.Constraint("Coincident", 12, 3, 9, 3))
sketch3.addConstraint(Sketcher.Constraint("Coincident", 13, 3, 9, 3))
sketch3.addConstraint(Sketcher.Constraint("Coincident", 19, 3, 16, 3))
sketch3.addConstraint(Sketcher.Constraint("Coincident", 20, 3, 16, 3))
sketch3.addConstraint(Sketcher.Constraint("Coincident", 25, 3, 22, 3))
sketch3.addConstraint(Sketcher.Constraint("Coincident", 27, 3, 22, 3))
sketch3.addConstraint(Sketcher.Constraint("Equal", 5, 9))
sketch3.addConstraint(Sketcher.Constraint("Equal", 2, 12))
sketch3.addConstraint(Sketcher.Constraint("Equal", 6, 13))
sketch3.addConstraint(Sketcher.Constraint("Equal", 9, 16))
sketch3.addConstraint(Sketcher.Constraint("Equal", 12, 19))
sketch3.addConstraint(Sketcher.Constraint("Equal", 13, 20))
sketch3.addConstraint(Sketcher.Constraint("Equal", 16, 22))
sketch3.addConstraint(Sketcher.Constraint("Equal", 19, 25))
sketch3.addConstraint(Sketcher.Constraint("Equal", 20, 27))
sketch3.addConstraint(Sketcher.Constraint("Symmetric", 2, 3, 16, 3, -1, 1))
sketch3.addConstraint(Sketcher.Constraint("Symmetric", 9, 3, 22, 3, -1, 1))
sketch3.addConstraint(Sketcher.Constraint("Symmetric", 2, 3, 9, 3, -2))
sketch3.addConstraint(Sketcher.Constraint("Diameter", 6, Q("2 mm")))
sketch3.addConstraint(Sketcher.Constraint("Radius", 2, Q("2.540001 mm")))
sketch3.addConstraint(Sketcher.Constraint("Radius", 5, Q("5.539999 mm")))
sketch3.addConstraint(Sketcher.Constraint("DistanceY", -1, 1, 2, 3, Q("24.130001 mm")))
sketch3.addConstraint(Sketcher.Constraint("DistanceX", 6, 3, 9, 3, Q("57.150001 mm")))
pad2 = body.newObject("PartDesign::Pad", "Pad001")
pad2.Profile = sketch3
pad2.Length = 5.5

doc.recompute()
